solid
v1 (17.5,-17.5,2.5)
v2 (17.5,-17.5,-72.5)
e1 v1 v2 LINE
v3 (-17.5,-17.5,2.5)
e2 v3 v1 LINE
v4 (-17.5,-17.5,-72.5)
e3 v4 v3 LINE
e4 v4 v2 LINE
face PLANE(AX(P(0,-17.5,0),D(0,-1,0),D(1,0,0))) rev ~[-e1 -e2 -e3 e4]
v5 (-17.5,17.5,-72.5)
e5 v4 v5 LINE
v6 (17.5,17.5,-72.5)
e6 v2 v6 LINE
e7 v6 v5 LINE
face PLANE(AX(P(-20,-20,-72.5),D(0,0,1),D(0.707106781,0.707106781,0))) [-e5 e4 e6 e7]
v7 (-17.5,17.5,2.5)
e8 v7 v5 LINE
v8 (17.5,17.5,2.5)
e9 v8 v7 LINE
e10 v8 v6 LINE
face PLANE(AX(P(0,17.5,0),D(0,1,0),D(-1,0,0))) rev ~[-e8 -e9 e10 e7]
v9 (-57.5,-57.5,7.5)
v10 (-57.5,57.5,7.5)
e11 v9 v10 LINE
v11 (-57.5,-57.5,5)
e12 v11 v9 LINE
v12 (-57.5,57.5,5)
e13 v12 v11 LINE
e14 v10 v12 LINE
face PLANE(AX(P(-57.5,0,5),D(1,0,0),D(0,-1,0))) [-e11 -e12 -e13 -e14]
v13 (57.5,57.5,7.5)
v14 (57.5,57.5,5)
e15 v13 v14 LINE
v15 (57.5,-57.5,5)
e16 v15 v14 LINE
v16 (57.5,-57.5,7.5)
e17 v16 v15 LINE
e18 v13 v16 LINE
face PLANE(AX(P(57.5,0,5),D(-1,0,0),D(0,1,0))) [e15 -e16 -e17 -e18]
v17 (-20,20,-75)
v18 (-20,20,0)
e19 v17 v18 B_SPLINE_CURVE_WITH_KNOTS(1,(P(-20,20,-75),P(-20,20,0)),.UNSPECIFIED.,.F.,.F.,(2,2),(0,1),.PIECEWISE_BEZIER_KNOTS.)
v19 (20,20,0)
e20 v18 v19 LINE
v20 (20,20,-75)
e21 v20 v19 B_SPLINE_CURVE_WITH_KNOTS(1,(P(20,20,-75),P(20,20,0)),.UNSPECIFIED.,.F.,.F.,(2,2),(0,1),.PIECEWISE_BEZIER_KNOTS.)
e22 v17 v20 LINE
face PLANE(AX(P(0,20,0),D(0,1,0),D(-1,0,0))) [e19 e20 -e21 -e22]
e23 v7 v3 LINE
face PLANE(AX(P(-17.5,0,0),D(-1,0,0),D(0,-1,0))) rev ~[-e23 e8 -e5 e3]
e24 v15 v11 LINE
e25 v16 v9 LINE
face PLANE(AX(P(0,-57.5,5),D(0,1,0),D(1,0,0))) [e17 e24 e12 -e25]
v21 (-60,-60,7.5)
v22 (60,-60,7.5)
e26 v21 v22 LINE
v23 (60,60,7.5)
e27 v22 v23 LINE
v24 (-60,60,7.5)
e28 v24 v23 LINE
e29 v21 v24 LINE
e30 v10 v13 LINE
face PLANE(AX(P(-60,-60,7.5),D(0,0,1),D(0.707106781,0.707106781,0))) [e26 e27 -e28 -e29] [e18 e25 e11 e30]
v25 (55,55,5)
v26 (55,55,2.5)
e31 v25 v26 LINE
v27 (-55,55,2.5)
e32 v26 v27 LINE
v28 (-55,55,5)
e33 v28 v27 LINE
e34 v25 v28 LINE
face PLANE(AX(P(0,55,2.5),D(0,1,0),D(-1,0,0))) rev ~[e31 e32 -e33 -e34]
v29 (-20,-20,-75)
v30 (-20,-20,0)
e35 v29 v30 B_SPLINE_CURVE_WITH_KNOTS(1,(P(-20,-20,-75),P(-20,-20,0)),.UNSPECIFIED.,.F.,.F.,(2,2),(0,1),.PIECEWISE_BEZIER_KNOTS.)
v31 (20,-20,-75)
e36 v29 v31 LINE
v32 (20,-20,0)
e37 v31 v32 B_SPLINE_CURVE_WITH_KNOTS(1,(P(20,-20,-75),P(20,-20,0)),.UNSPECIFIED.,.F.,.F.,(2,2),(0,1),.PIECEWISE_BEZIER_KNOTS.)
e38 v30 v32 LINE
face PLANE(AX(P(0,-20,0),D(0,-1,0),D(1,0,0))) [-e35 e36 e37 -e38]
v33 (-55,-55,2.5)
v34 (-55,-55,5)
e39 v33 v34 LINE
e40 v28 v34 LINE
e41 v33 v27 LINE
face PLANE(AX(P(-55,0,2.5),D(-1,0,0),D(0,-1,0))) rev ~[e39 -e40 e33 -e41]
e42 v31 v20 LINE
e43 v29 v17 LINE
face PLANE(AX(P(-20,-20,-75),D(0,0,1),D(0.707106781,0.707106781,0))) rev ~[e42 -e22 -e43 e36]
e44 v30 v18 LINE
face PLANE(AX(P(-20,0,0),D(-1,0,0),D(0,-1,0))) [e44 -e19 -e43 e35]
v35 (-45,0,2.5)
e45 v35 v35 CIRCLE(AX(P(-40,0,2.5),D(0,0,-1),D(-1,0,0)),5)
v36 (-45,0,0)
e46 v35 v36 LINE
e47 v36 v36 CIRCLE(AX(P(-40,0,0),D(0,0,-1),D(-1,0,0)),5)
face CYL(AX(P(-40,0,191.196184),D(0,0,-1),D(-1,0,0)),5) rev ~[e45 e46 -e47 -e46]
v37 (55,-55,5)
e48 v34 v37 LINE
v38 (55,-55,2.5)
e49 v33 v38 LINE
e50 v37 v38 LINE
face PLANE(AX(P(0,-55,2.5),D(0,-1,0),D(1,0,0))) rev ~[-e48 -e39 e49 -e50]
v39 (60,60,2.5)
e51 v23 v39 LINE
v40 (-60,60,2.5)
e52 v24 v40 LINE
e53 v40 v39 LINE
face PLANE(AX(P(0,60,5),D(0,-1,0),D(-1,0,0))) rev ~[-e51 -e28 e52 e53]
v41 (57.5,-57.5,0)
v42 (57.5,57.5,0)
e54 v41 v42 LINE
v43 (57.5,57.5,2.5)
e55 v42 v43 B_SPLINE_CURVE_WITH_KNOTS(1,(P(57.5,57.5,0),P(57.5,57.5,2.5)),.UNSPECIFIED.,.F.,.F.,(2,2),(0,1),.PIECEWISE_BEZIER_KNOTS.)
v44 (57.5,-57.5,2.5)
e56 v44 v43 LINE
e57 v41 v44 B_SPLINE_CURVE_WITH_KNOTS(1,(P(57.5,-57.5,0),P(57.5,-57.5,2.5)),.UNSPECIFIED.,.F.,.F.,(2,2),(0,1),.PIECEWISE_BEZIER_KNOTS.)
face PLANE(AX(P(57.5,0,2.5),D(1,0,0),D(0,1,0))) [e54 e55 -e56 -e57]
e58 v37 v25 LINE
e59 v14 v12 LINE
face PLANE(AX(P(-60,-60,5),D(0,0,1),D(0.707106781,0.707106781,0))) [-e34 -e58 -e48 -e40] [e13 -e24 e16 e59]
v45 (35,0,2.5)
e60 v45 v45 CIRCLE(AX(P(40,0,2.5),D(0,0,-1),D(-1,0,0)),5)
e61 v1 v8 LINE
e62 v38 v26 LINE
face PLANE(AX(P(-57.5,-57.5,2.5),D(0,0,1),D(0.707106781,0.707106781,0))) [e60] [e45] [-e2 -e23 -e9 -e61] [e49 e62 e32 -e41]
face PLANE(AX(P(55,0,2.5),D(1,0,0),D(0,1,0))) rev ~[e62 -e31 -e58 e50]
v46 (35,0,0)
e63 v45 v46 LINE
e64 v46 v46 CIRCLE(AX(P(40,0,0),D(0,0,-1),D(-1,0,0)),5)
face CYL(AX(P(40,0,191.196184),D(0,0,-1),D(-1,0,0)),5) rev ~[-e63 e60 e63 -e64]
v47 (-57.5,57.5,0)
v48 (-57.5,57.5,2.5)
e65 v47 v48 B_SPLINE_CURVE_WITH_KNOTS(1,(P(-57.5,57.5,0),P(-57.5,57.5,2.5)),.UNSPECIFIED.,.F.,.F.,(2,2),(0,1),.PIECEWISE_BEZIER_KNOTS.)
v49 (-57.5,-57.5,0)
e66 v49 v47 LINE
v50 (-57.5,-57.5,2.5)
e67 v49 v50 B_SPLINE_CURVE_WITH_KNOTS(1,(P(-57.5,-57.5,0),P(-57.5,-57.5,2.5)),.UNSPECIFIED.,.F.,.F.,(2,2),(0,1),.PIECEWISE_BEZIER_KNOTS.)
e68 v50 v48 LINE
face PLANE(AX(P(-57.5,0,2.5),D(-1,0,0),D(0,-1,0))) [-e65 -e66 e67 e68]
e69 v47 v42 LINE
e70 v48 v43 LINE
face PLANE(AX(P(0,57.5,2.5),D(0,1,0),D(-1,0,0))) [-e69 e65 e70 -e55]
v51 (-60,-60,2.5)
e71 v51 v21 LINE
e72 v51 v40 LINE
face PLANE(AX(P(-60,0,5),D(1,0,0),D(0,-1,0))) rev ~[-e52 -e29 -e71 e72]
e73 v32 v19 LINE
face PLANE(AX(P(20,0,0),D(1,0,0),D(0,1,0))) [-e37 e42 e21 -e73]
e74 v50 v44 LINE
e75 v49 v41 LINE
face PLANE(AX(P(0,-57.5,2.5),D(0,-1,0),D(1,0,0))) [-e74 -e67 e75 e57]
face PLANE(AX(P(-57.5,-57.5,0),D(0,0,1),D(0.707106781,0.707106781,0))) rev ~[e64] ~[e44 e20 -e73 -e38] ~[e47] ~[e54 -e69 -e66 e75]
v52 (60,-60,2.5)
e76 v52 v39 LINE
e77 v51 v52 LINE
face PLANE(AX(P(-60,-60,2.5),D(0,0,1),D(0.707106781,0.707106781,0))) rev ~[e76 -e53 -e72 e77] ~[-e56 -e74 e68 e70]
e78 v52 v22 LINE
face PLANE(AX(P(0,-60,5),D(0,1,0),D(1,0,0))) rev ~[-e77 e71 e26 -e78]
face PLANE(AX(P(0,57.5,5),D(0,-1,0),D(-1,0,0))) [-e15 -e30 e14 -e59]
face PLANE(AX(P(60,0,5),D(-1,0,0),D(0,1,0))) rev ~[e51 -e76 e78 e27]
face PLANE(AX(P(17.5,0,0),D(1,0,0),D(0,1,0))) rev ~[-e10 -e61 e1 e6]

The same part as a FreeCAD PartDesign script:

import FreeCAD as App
import Part
import Sketcher

V = App.Vector


def faces_at(feature, points):
    """Names of the faces that lie closest to the given points."""
    faces = feature.Shape.Faces
    near = lambda p: min(range(len(faces)), key=lambda i: faces[i].distToShape(Part.Vertex(*p))[0])
    return sorted({f"Face{near(p) + 1}" for p in points})


def add_polygon(sketch, points):
    """Adds a closed chain of lines whose ends are joined by coincident constraints."""
    first, n = sketch.GeometryCount, len(points)
    for a, b in zip(points, points[1:] + points[:1]):
        sketch.addGeometry(Part.LineSegment(App.Vector(*a, 0), App.Vector(*b, 0)), False)
    for i in range(n):
        sketch.addConstraint(Sketcher.Constraint("Coincident", first + i, 2, first + (i + 1) % n, 1))

doc = App.newDocument("Part")
body = doc.addObject("PartDesign::Body", "Body")

sketch1 = body.newObject("Sketcher::SketchObject", "Sketch")
sketch1.AttachmentSupport = (doc.getObject("XY_Plane"), [""])
sketch1.MapMode = "FlatFace"
sketch1.AttachmentOffset = App.Placement(V(0, 0, -75), App.Rotation())
add_polygon(sketch1, [(-20, 20), (-20, -20), (20, -20), (20, 20)])
sketch1.addConstraint(Sketcher.Constraint("Vertical", 0))
sketch1.addConstraint(Sketcher.Constraint("Horizontal", 1))
sketch1.addConstraint(Sketcher.Constraint("Vertical", 2))
sketch1.addConstraint(Sketcher.Constraint("Horizontal", 3))
sketch1.addConstraint(Sketcher.Constraint("Symmetric", 0, 2, 2, 2, -1, 1))
sketch1.addConstraint(Sketcher.Constraint("Equal", 3, 0))
sketch1.addConstraint(Sketcher.Constraint("DistanceX", 1, 1, 1, 2, 40.0))

sketch2 = body.newObject("Sketcher::SketchObject", "Sketch001")
sketch2.AttachmentSupport = (doc.getObject("XY_Plane"), [""])
sketch2.MapMode = "FlatFace"
add_polygon(sketch2, [(-20, 20), (-20, -20), (20, -20), (20, 20)])
sketch2.addConstraint(Sketcher.Constraint("Vertical", 0))
sketch2.addConstraint(Sketcher.Constraint("Horizontal", 1))
sketch2.addConstraint(Sketcher.Constraint("Vertical", 2))
sketch2.addConstraint(Sketcher.Constraint("Horizontal", 3))
sketch2.addConstraint(Sketcher.Constraint("Symmetric", 0, 2, 2, 2, -1, 1))
sketch2.addConstraint(Sketcher.Constraint("Equal", 3, 0))
sketch2.addConstraint(Sketcher.Constraint("DistanceX", 1, 1, 1, 2, 40.0))

additiveloft = body.newObject("PartDesign::AdditiveLoft", "AdditiveLoft")
additiveloft.Profile = sketch1
additiveloft.Sections = [sketch2]

sketch3 = body.newObject("Sketcher::SketchObject", "Sketch002")
sketch3.AttachmentSupport = (doc.getObject("XY_Plane"), [""])
sketch3.MapMode = "FlatFace"
add_polygon(sketch3, [(-57.5, 57.5), (-57.5, -57.5), (57.5, -57.5), (57.5, 57.5)])
sketch3.addConstraint(Sketcher.Constraint("Vertical", 0))
sketch3.addConstraint(Sketcher.Constraint("Horizontal", 1))
sketch3.addConstraint(Sketcher.Constraint("Vertical", 2))
sketch3.addConstraint(Sketcher.Constraint("Horizontal", 3))
sketch3.addConstraint(Sketcher.Constraint("Symmetric", 0, 2, 2, 2, -1, 1))
sketch3.addConstraint(Sketcher.Constraint("Equal", 3, 0))
sketch3.addConstraint(Sketcher.Constraint("DistanceX", 1, 1, 1, 2, 115.0))

sketch4 = body.newObject("Sketcher::SketchObject", "Sketch003")
sketch4.AttachmentSupport = (doc.getObject("XY_Plane"), [""])
sketch4.MapMode = "FlatFace"
sketch4.AttachmentOffset = App.Placement(V(0, 0, 2.5), App.Rotation())
add_polygon(sketch4, [(-57.5, 57.5), (-57.5, -57.5), (57.5, -57.5), (57.5, 57.5)])
sketch4.addConstraint(Sketcher.Constraint("Vertical", 0))
sketch4.addConstraint(Sketcher.Constraint("Horizontal", 1))
sketch4.addConstraint(Sketcher.Constraint("Vertical", 2))
sketch4.addConstraint(Sketcher.Constraint("Horizontal", 3))
sketch4.addConstraint(Sketcher.Constraint("Symmetric", 0, 2, 2, 2, -1, 1))
sketch4.addConstraint(Sketcher.Constraint("Equal", 3, 0))
sketch4.addConstraint(Sketcher.Constraint("DistanceX", 1, 1, 1, 2, 115.0))

additiveloft2 = body.newObject("PartDesign::AdditiveLoft", "AdditiveLoft001")
additiveloft2.Profile = sketch3
additiveloft2.Sections = [sketch4]

sketch5 = body.newObject("Sketcher::SketchObject", "Sketch004")
sketch5.AttachmentSupport = (doc.getObject("XY_Plane"), [""])
sketch5.MapMode = "FlatFace"
sketch5.AttachmentOffset = App.Placement(V(0, 0, 5), App.Rotation())
add_polygon(sketch5, [(-60, 60), (-60, -60), (60, -60), (60, 60)])
sketch5.addConstraint(Sketcher.Constraint("Vertical", 0))
sketch5.addConstraint(Sketcher.Constraint("Horizontal", 1))
sketch5.addConstraint(Sketcher.Constraint("Vertical", 2))
sketch5.addConstraint(Sketcher.Constraint("Horizontal", 3))
sketch5.addConstraint(Sketcher.Constraint("Symmetric", 0, 2, 2, 2, -1, 1))
sketch5.addConstraint(Sketcher.Constraint("Equal", 3, 0))
sketch5.addConstraint(Sketcher.Constraint("DistanceX", 1, 1, 1, 2, 120.0))

sketch6 = body.newObject("Sketcher::SketchObject", "Sketch005")
sketch6.AttachmentSupport = (doc.getObject("XY_Plane"), [""])
sketch6.MapMode = "FlatFace"
sketch6.AttachmentOffset = App.Placement(V(0, 0, 2.5), App.Rotation())
add_polygon(sketch6, [(-60, 60), (-60, -60), (60, -60), (60, 60)])
sketch6.addConstraint(Sketcher.Constraint("Vertical", 0))
sketch6.addConstraint(Sketcher.Constraint("Horizontal", 1))
sketch6.addConstraint(Sketcher.Constraint("Vertical", 2))
sketch6.addConstraint(Sketcher.Constraint("Horizontal", 3))
sketch6.addConstraint(Sketcher.Constraint("Symmetric", 0, 2, 2, 2, -1, 1))
sketch6.addConstraint(Sketcher.Constraint("Equal", 3, 0))
sketch6.addConstraint(Sketcher.Constraint("DistanceX", 1, 1, 1, 2, 120.0))

additiveloft3 = body.newObject("PartDesign::AdditiveLoft", "AdditiveLoft002")
additiveloft3.Profile = sketch5
additiveloft3.Sections = [sketch6]

sketch7 = body.newObject("Sketcher::SketchObject", "Sketch006")
sketch7.AttachmentSupport = (doc.getObject("XY_Plane"), [""])
sketch7.MapMode = "FlatFace"
sketch7.AttachmentOffset = App.Placement(V(0, 0, 7.5), App.Rotation())
add_polygon(sketch7, [(-60, 60), (-60, -60), (60, -60), (60, 60)])
sketch7.addConstraint(Sketcher.Constraint("Vertical", 0))
sketch7.addConstraint(Sketcher.Constraint("Horizontal", 1))
sketch7.addConstraint(Sketcher.Constraint("Vertical", 2))
sketch7.addConstraint(Sketcher.Constraint("Horizontal", 3))
sketch7.addConstraint(Sketcher.Constraint("Symmetric", 0, 2, 2, 2, -1, 1))
sketch7.addConstraint(Sketcher.Constraint("Equal", 3, 0))
sketch7.addConstraint(Sketcher.Constraint("DistanceX", 1, 1, 1, 2, 120.0))

sketch8 = body.newObject("Sketcher::SketchObject", "Sketch007")
sketch8.AttachmentSupport = (doc.getObject("XY_Plane"), [""])
sketch8.MapMode = "FlatFace"
sketch8.AttachmentOffset = App.Placement(V(0, 0, 5), App.Rotation())
add_polygon(sketch8, [(-60, 60), (-60, -60), (60, -60), (60, 60)])
sketch8.addConstraint(Sketcher.Constraint("Vertical", 0))
sketch8.addConstraint(Sketcher.Constraint("Horizontal", 1))
sketch8.addConstraint(Sketcher.Constraint("Vertical", 2))
sketch8.addConstraint(Sketcher.Constraint("Horizontal", 3))
sketch8.addConstraint(Sketcher.Constraint("Symmetric", 0, 2, 2, 2, -1, 1))
sketch8.addConstraint(Sketcher.Constraint("Equal", 3, 0))
sketch8.addConstraint(Sketcher.Constraint("DistanceX", 1, 1, 1, 2, 120.0))

additiveloft4 = body.newObject("PartDesign::AdditiveLoft", "AdditiveLoft003")
additiveloft4.Profile = sketch7
additiveloft4.Sections = [sketch8]
doc.recompute()

thickness = body.newObject("PartDesign::Thickness", "Thickness")
thickness.Base = (additiveloft4, faces_at(additiveloft4, [(0, 0, 7.5)]))
thickness.Value = 2.5
thickness.Reversed = True
thickness.Join = "Intersection"

sketch9 = body.newObject("Sketcher::SketchObject", "Sketch008")
sketch9.AttachmentSupport = (doc.getObject("XY_Plane"), [""])
sketch9.MapMode = "FlatFace"
sketch9.AttachmentOffset = App.Placement(V(0, 0, 2.5), App.Rotation())
sketch9.addGeometry(Part.Circle(V(-40, 0, 0), V(0, 0, 1), 5), False)
sketch9.addConstraint(Sketcher.Constraint("PointOnObject", 0, 3, -1))
sketch9.addConstraint(Sketcher.Constraint("Diameter", 0, 10.0))
sketch9.addConstraint(Sketcher.Constraint("DistanceX", 0, 3, -1, 1, 40.0))
doc.recompute()
hole = body.newObject("PartDesign::Hole", "Hole")
hole.Profile = sketch9
hole.ThreadType = "None"
hole.Diameter = 10
hole.DepthType = "ThroughAll"

sketch10 = body.newObject("Sketcher::SketchObject", "Sketch009")
sketch10.AttachmentSupport = (doc.getObject("XY_Plane"), [""])
sketch10.MapMode = "FlatFace"
sketch10.AttachmentOffset = App.Placement(V(0, 0, 2.5), App.Rotation())
sketch10.addGeometry(Part.Circle(V(40, 0, 0), V(0, 0, 1), 5), False)
sketch10.addConstraint(Sketcher.Constraint("PointOnObject", 0, 3, -1))
sketch10.addConstraint(Sketcher.Constraint("Diameter", 0, 10.0))
sketch10.addConstraint(Sketcher.Constraint("DistanceX", -1, 1, 0, 3, 40.0))
doc.recompute()
hole2 = body.newObject("PartDesign::Hole", "Hole001")
hole2.Profile = sketch10
hole2.ThreadType = "None"
hole2.Diameter = 10
hole2.DepthType = "ThroughAll"

doc.recompute()
